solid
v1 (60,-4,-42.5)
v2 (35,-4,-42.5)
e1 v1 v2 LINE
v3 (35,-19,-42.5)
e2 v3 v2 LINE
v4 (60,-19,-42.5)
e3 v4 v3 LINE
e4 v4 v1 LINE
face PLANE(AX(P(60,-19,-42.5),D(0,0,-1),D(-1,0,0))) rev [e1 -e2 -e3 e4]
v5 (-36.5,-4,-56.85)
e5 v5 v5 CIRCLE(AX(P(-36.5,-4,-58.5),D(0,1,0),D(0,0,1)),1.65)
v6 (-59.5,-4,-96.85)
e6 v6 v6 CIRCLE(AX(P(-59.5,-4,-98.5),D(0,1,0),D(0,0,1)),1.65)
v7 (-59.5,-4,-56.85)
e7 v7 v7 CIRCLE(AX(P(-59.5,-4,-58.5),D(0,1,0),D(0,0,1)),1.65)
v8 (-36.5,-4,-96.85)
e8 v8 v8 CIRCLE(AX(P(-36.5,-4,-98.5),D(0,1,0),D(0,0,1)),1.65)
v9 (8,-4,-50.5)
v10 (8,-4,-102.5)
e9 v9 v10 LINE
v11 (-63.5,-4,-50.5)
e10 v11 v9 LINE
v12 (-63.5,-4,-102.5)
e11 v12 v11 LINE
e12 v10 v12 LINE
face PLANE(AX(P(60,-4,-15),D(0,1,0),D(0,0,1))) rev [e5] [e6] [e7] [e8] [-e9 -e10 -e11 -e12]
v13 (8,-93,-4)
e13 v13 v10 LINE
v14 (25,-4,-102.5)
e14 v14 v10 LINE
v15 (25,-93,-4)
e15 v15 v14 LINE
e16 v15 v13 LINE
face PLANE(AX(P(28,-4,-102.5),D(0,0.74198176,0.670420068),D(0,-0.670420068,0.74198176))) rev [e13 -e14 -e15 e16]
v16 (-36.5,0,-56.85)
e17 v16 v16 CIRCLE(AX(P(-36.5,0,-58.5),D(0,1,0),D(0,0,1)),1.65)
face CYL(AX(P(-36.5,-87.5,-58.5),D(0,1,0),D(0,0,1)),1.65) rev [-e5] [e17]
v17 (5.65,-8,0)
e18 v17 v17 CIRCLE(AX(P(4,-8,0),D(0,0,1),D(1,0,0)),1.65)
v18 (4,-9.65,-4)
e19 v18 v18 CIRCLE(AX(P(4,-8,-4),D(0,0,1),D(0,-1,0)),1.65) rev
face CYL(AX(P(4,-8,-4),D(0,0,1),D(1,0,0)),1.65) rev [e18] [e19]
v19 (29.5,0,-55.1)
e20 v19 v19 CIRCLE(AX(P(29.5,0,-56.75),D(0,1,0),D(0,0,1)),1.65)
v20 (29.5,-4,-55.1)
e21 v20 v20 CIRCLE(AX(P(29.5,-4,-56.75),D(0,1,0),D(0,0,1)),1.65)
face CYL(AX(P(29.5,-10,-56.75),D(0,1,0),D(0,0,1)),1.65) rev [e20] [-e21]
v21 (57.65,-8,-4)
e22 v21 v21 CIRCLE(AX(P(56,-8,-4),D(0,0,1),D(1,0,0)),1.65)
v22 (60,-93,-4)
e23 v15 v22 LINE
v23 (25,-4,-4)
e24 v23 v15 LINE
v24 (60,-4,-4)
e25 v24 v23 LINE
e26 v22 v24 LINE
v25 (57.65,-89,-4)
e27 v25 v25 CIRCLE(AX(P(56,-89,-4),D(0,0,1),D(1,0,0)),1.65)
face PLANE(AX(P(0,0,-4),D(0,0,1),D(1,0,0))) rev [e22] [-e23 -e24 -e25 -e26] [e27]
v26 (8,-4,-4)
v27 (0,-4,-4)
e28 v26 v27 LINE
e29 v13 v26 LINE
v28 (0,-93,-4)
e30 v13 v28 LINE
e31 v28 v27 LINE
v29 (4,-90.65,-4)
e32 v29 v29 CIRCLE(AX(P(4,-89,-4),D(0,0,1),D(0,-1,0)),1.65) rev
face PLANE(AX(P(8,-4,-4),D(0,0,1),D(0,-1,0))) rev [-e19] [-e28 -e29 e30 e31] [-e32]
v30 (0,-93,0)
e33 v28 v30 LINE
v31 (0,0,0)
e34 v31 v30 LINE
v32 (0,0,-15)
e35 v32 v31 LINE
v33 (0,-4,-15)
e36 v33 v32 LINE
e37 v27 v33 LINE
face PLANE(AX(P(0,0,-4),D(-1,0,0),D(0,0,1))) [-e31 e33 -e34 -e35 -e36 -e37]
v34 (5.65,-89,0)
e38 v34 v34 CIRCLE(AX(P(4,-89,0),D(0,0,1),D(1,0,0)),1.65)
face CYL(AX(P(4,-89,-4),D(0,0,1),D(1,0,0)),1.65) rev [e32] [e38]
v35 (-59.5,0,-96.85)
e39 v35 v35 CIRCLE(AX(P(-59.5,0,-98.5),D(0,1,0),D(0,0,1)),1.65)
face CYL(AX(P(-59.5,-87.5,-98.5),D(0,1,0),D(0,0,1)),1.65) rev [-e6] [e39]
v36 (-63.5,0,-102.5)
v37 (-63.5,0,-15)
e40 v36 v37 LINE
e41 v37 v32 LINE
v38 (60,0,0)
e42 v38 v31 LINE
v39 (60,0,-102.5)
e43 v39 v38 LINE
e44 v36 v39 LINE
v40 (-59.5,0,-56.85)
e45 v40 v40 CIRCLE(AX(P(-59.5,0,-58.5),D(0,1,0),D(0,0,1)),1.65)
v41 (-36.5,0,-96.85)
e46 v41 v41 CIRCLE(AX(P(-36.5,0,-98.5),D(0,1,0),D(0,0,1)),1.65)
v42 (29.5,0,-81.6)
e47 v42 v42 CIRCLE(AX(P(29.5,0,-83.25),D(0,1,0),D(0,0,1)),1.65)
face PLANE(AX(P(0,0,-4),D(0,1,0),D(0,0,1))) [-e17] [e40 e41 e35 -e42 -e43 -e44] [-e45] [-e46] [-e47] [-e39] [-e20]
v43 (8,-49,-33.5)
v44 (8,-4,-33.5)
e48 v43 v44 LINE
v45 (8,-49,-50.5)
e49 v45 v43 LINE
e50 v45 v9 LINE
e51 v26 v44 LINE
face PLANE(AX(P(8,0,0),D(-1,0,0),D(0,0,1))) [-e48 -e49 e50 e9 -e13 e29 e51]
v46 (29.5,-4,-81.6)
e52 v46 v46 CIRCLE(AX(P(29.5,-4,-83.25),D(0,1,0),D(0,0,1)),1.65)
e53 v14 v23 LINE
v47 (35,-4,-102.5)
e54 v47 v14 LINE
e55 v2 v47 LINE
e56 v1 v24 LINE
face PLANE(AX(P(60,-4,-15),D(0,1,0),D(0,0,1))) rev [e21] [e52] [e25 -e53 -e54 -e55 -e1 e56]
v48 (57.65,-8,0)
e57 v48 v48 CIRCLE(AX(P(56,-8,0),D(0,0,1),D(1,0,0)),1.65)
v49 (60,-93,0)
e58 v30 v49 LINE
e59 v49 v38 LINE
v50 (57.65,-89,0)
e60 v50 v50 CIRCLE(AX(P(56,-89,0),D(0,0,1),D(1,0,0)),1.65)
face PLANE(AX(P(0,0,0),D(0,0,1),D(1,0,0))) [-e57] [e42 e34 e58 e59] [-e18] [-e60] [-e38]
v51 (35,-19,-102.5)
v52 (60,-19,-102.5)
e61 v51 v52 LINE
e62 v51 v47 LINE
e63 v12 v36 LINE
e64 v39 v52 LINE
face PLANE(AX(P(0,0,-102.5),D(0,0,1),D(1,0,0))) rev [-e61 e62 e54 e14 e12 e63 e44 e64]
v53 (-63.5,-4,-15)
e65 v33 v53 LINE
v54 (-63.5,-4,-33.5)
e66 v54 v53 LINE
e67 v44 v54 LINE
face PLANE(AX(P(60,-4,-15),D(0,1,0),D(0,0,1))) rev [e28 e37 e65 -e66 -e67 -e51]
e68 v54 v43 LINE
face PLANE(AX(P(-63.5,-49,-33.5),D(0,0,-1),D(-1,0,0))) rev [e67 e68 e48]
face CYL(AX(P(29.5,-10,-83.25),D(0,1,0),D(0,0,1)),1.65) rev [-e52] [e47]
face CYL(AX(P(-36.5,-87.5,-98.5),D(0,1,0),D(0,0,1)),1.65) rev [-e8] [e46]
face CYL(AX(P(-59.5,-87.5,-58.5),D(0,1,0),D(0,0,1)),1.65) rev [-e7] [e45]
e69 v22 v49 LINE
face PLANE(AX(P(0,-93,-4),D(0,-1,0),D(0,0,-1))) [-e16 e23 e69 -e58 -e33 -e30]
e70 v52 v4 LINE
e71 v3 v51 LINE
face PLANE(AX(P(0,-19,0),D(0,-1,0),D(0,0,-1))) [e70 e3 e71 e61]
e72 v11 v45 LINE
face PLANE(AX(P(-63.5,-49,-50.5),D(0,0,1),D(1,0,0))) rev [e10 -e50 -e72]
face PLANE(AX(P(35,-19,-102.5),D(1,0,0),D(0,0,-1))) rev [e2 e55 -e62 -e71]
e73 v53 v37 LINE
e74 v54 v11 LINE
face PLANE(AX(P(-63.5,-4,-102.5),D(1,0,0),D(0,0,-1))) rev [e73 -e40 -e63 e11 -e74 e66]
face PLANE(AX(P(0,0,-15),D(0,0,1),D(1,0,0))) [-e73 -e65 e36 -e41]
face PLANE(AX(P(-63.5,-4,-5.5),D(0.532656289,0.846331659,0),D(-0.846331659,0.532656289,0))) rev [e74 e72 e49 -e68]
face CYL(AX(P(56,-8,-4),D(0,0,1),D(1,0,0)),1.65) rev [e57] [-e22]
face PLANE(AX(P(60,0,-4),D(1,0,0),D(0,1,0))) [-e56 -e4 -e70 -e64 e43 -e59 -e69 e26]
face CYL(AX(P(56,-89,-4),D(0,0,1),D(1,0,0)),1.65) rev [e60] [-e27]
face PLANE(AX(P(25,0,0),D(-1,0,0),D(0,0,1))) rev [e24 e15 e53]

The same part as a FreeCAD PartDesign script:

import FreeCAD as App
import Part
import Sketcher

doc = App.newDocument("Part")
params = doc.addObject("Spreadsheet::Sheet", "Params")
for row, (alias, value) in enumerate([
    ("sketch1_width", "60 mm"),
    ("sketch1_height", "93 mm"),
    ("pad1_length", "4 mm"),
    ("sketch2_diameter", "3.3 mm"),
    ("pocket1_length", "4 mm"),
    ("sketch3_width", "60 mm"),
    ("sketch3_height", "4 mm"),
    ("pad2_length", "11 mm"),
    ("sketch4_height", "4 mm"),
    ("sketch4_width", "123.5 mm"),
    ("pad3_length", "87.5 mm"),
    ("sketch5_diameter", "3.3 mm"),
    ("pocket2_length", "87.5 mm"),
    ("sketch6_diameter", "3.3 mm"),
    ("pocket3_length", "10 mm"),
    ("sketch7_width", "89 mm"),
    ("sketch7_height", "98.5 mm"),
    ("pad4_length", "25 mm"),
    ("sketch8_width", "89 mm"),
    ("sketch8_height", "98.5 mm"),
    ("pocket4_length", "8 mm"),
    ("sketch9_width", "89 mm"),
    ("sketch9_height", "98.5 mm"),
    ("pocket5_length", "20 mm"),
    ("sketch10_height", "17 mm"),
    ("sketch10_width", "71.5 mm"),
    ("pad5_length", "45 mm"),
    ("sketch11_height", "45 mm"),
    ("sketch11_width", "71.5 mm"),
    ("pocket6_length", "45 mm"),
    ("sketch12_width", "25 mm"),
    ("sketch12_height", "60 mm"),
    ("pad6_length", "15 mm"),
], start=1):
    params.set(f"A{row}", alias)
    params.set(f"B{row}", "=" + value)
    params.setAlias(f"B{row}", alias)

body = doc.addObject("PartDesign::Body", "Body")

sketch1 = doc.addObject("Sketcher::SketchObject", "Sketch")
body.addObject(sketch1)
sketch1.AttachmentSupport = (doc.XY_Plane, [""])
sketch1.MapMode = "FlatFace"
sketch1.addGeometry([
    Part.LineSegment(App.Vector(0, 0, 0), App.Vector(0, -93, 0)),
    Part.LineSegment(App.Vector(0, -93, 0), App.Vector(60, -93, 0)),
    Part.LineSegment(App.Vector(60, -93, 0), App.Vector(60, 0, 0)),
    Part.LineSegment(App.Vector(60, 0, 0), App.Vector(0, 0, 0)),
], False)
sketch1.addConstraint([
    Sketcher.Constraint("Coincident", 0, 2, 1, 1),
    Sketcher.Constraint("Coincident", 1, 2, 2, 1),
    Sketcher.Constraint("Coincident", 2, 2, 3, 1),
    Sketcher.Constraint("Coincident", 3, 2, 0, 1),
    Sketcher.Constraint("Vertical", 0),
    Sketcher.Constraint("Horizontal", 1),
    Sketcher.Constraint("Vertical", 2),
    Sketcher.Constraint("Horizontal", 3),
    Sketcher.Constraint("Coincident", 3, 2, -1, 1),
    Sketcher.Constraint("DistanceX", 1, 1, 1, 2, 60.0),
    Sketcher.Constraint("DistanceY", 0, 2, 0, 1, 93.0),
])
sketch1.setExpression("Constraints[9]", "Params.sketch1_width")
sketch1.setExpression("Constraints[10]", "Params.sketch1_height")
pad1 = doc.addObject("PartDesign::Pad", "Pad")
body.addObject(pad1)
pad1.Profile = sketch1
pad1.setExpression("Length", "Params.pad1_length")
pad1.Reversed = True

sketch2 = doc.addObject("Sketcher::SketchObject", "Sketch001")
body.addObject(sketch2)
sketch2.AttachmentSupport = (doc.XY_Plane, [""])
sketch2.MapMode = "FlatFace"
sketch2.addGeometry([
    Part.Circle(App.Vector(4, -8, 0), App.Vector(0, 0, 1), 1.6),
    Part.Circle(App.Vector(56, -8, 0), App.Vector(0, 0, 1), 1.6),
    Part.Circle(App.Vector(4, -89, 0), App.Vector(0, 0, 1), 1.6),
    Part.Circle(App.Vector(56, -89, 0), App.Vector(0, 0, 1), 1.6),
], False)
sketch2.addConstraint([
    Sketcher.Constraint("Equal", 0, 1),
    Sketcher.Constraint("Equal", 1, 2),
    Sketcher.Constraint("Equal", 2, 3),
    Sketcher.Constraint("Horizontal", 0, 3, 1, 3),
    Sketcher.Constraint("Horizontal", 2, 3, 3, 3),
    Sketcher.Constraint("Vertical", 0, 3, 2, 3),
    Sketcher.Constraint("Vertical", 1, 3, 3, 3),
    Sketcher.Constraint("Diameter", 0, 3.3),
    Sketcher.Constraint("DistanceX", -1, 1, 0, 3, 4.0),
    Sketcher.Constraint("DistanceY", 0, 3, -1, 1, 8.0),
    Sketcher.Constraint("DistanceX", -1, 1, 1, 3, 56.0),
    Sketcher.Constraint("DistanceY", 2, 3, -1, 1, 89.0),
])
sketch2.setExpression("Constraints[7]", "Params.sketch2_diameter")
pocket1 = doc.addObject("PartDesign::Pocket", "Pocket")
body.addObject(pocket1)
pocket1.Profile = sketch2
pocket1.setExpression("Length", "Params.pocket1_length")

sketch3 = doc.addObject("Sketcher::SketchObject", "Sketch002")
body.addObject(sketch3)
sketch3.AttachmentSupport = (doc.XY_Plane, [""])
sketch3.MapMode = "FlatFace"
sketch3.AttachmentOffset = App.Placement(App.Vector(0, 0, -4), App.Rotation())
sketch3.addGeometry([
    Part.LineSegment(App.Vector(60, 0, 0), App.Vector(60, -4, 0)),
    Part.LineSegment(App.Vector(60, -4, 0), App.Vector(0, -4, 0)),
    Part.LineSegment(App.Vector(0, -4, 0), App.Vector(0, 0, 0)),
    Part.LineSegment(App.Vector(0, 0, 0), App.Vector(60, 0, 0)),
], False)
sketch3.addConstraint([
    Sketcher.Constraint("Coincident", 0, 2, 1, 1),
    Sketcher.Constraint("Coincident", 1, 2, 2, 1),
    Sketcher.Constraint("Coincident", 2, 2, 3, 1),
    Sketcher.Constraint("Coincident", 3, 2, 0, 1),
    Sketcher.Constraint("Vertical", 0),
    Sketcher.Constraint("Horizontal", 1),
    Sketcher.Constraint("Vertical", 2),
    Sketcher.Constraint("Horizontal", 3),
    Sketcher.Constraint("Coincident", 2, 2, -1, 1),
    Sketcher.Constraint("DistanceX", 1, 2, 1, 1, 60.0),
    Sketcher.Constraint("DistanceY", 0, 2, 0, 1, 4.0),
])
sketch3.setExpression("Constraints[9]", "Params.sketch3_width")
sketch3.setExpression("Constraints[10]", "Params.sketch3_height")
pad2 = doc.addObject("PartDesign::Pad", "Pad001")
body.addObject(pad2)
pad2.Profile = sketch3
pad2.setExpression("Length", "Params.pad2_length")
pad2.Reversed = True

sketch4 = doc.addObject("Sketcher::SketchObject", "Sketch003")
body.addObject(sketch4)
sketch4.AttachmentSupport = (doc.XY_Plane, [""])
sketch4.MapMode = "FlatFace"
sketch4.AttachmentOffset = App.Placement(App.Vector(0, 0, -15), App.Rotation())
sketch4.addGeometry([
    Part.LineSegment(App.Vector(60, 0, 0), App.Vector(60, -4, 0)),
    Part.LineSegment(App.Vector(60, -4, 0), App.Vector(-63.5, -4, 0)),
    Part.LineSegment(App.Vector(-63.5, -4, 0), App.Vector(-63.5, 0, 0)),
    Part.LineSegment(App.Vector(-63.5, 0, 0), App.Vector(60, 0, 0)),
], False)
sketch4.addConstraint([
    Sketcher.Constraint("Coincident", 0, 2, 1, 1),
    Sketcher.Constraint("Coincident", 1, 2, 2, 1),
    Sketcher.Constraint("Coincident", 2, 2, 3, 1),
    Sketcher.Constraint("Coincident", 3, 2, 0, 1),
    Sketcher.Constraint("Vertical", 0),
    Sketcher.Constraint("Horizontal", 1),
    Sketcher.Constraint("Vertical", 2),
    Sketcher.Constraint("Horizontal", 3),
    Sketcher.Constraint("PointOnObject", 2, 2, -1),
    Sketcher.Constraint("DistanceY", 0, 2, 0, 1, 4.0),
    Sketcher.Constraint("DistanceX", 1, 2, 1, 1, 123.5),
    Sketcher.Constraint("DistanceX", -1, 1, 0, 2, 60.0),
])
sketch4.setExpression("Constraints[9]", "Params.sketch4_height")
sketch4.setExpression("Constraints[10]", "Params.sketch4_width")
pad3 = doc.addObject("PartDesign::Pad", "Pad002")
body.addObject(pad3)
pad3.Profile = sketch4
pad3.setExpression("Length", "Params.pad3_length")
pad3.Reversed = True

sketch5 = doc.addObject("Sketcher::SketchObject", "Sketch004")
body.addObject(sketch5)
sketch5.AttachmentSupport = (doc.XZ_Plane, [""])
sketch5.MapMode = "FlatFace"
sketch5.addGeometry([
    Part.Circle(App.Vector(-59.5, -98.5, 0), App.Vector(0, 0, 1), 1.6),
    Part.Circle(App.Vector(-36.5, -98.5, 0), App.Vector(0, 0, 1), 1.6),
    Part.Circle(App.Vector(-59.5, -58.5, 0), App.Vector(0, 0, 1), 1.6),
    Part.Circle(App.Vector(-36.5, -58.5, 0), App.Vector(0, 0, 1), 1.6),
], False)
sketch5.addConstraint([
    Sketcher.Constraint("Equal", 0, 1),
    Sketcher.Constraint("Equal", 1, 2),
    Sketcher.Constraint("Equal", 2, 3),
    Sketcher.Constraint("Horizontal", 0, 3, 1, 3),
    Sketcher.Constraint("Horizontal", 2, 3, 3, 3),
    Sketcher.Constraint("Vertical", 0, 3, 2, 3),
    Sketcher.Constraint("Vertical", 1, 3, 3, 3),
    Sketcher.Constraint("Diameter", 0, 3.3),
    Sketcher.Constraint("DistanceX", 0, 3, 1, 3, 23.0),
    Sketcher.Constraint("DistanceY", 0, 3, 2, 3, 40.0),
    Sketcher.Constraint("DistanceX", 0, 3, -1, 1, 59.5),
    Sketcher.Constraint("DistanceY", 0, 3, -1, 1, 98.5),
])
sketch5.setExpression("Constraints[7]", "Params.sketch5_diameter")
pocket2 = doc.addObject("PartDesign::Pocket", "Pocket001")
body.addObject(pocket2)
pocket2.Profile = sketch5
pocket2.setExpression("Length", "Params.pocket2_length")
pocket2.Reversed = True

sketch6 = doc.addObject("Sketcher::SketchObject", "Sketch005")
body.addObject(sketch6)
sketch6.AttachmentSupport = (doc.XZ_Plane, [""])
sketch6.MapMode = "FlatFace"
sketch6.addGeometry([
    Part.Circle(App.Vector(29.5, -83.2, 0), App.Vector(0, 0, 1), 1.6),
    Part.Circle(App.Vector(29.5, -56.8, 0), App.Vector(0, 0, 1), 1.6),
], False)
sketch6.addConstraint([
    Sketcher.Constraint("Equal", 0, 1),
    Sketcher.Constraint("Vertical", 0, 3, 1, 3),
    Sketcher.Constraint("Diameter", 0, 3.3),
    Sketcher.Constraint("DistanceX", -1, 1, 0, 3, 29.5),
    Sketcher.Constraint("DistanceY", 0, 3, 1, 3, 26.5),
    Sketcher.Constraint("DistanceY", 0, 3, -1, 1, 83.25),
])
sketch6.setExpression("Constraints[2]", "Params.sketch6_diameter")
pocket3 = doc.addObject("PartDesign::Pocket", "Pocket002")
body.addObject(pocket3)
pocket3.Profile = sketch6
pocket3.setExpression("Length", "Params.pocket3_length")
pocket3.Reversed = True

sketch7 = doc.addObject("Sketcher::SketchObject", "Sketch006")
body.addObject(sketch7)
sketch7.AttachmentSupport = (doc.YZ_Plane, [""])
sketch7.MapMode = "FlatFace"
sketch7.addGeometry([
    Part.LineSegment(App.Vector(-4, -4, 0), App.Vector(-93, -4, 0)),
    Part.LineSegment(App.Vector(-93, -4, 0), App.Vector(-93, -102, 0)),
    Part.LineSegment(App.Vector(-93, -102, 0), App.Vector(-4, -102, 0)),
    Part.LineSegment(App.Vector(-4, -102, 0), App.Vector(-4, -4, 0)),
], False)
sketch7.addConstraint([
    Sketcher.Constraint("Coincident", 0, 2, 1, 1),
    Sketcher.Constraint("Coincident", 1, 2, 2, 1),
    Sketcher.Constraint("Coincident", 2, 2, 3, 1),
    Sketcher.Constraint("Coincident", 3, 2, 0, 1),
    Sketcher.Constraint("Horizontal", 0),
    Sketcher.Constraint("Vertical", 1),
    Sketcher.Constraint("Horizontal", 2),
    Sketcher.Constraint("Vertical", 3),
    Sketcher.Constraint("DistanceX", 0, 2, 0, 1, 89.0),
    Sketcher.Constraint("DistanceY", 1, 2, 1, 1, 98.5),
    Sketcher.Constraint("DistanceX", 0, 2, -1, 1, 93.0),
    Sketcher.Constraint("DistanceY", 0, 2, -1, 1, 4.0),
])
sketch7.setExpression("Constraints[8]", "Params.sketch7_width")
sketch7.setExpression("Constraints[9]", "Params.sketch7_height")
pad4 = doc.addObject("PartDesign::Pad", "Pad003")
body.addObject(pad4)
pad4.Profile = sketch7
pad4.setExpression("Length", "Params.pad4_length")

sketch8 = doc.addObject("Sketcher::SketchObject", "Sketch007")
body.addObject(sketch8)
sketch8.AttachmentSupport = (doc.YZ_Plane, [""])
sketch8.MapMode = "FlatFace"
sketch8.addGeometry([
    Part.LineSegment(App.Vector(-4, -102, 0), App.Vector(-93, -102, 0)),
    Part.LineSegment(App.Vector(-93, -102, 0), App.Vector(-93, -4, 0)),
    Part.LineSegment(App.Vector(-93, -4, 0), App.Vector(-4, -4, 0)),
    Part.LineSegment(App.Vector(-4, -4, 0), App.Vector(-4, -102, 0)),
], False)
sketch8.addConstraint([
    Sketcher.Constraint("Coincident", 0, 2, 1, 1),
    Sketcher.Constraint("Coincident", 1, 2, 2, 1),
    Sketcher.Constraint("Coincident", 2, 2, 3, 1),
    Sketcher.Constraint("Coincident", 3, 2, 0, 1),
    Sketcher.Constraint("Horizontal", 0),
    Sketcher.Constraint("Vertical", 1),
    Sketcher.Constraint("Horizontal", 2),
    Sketcher.Constraint("Vertical", 3),
    Sketcher.Constraint("DistanceX", 0, 2, 0, 1, 89.0),
    Sketcher.Constraint("DistanceY", 1, 1, 1, 2, 98.5),
    Sketcher.Constraint("DistanceX", 0, 2, -1, 1, 93.0),
    Sketcher.Constraint("DistanceY", 1, 2, -1, 1, 4.0),
])
sketch8.setExpression("Constraints[8]", "Params.sketch8_width")
sketch8.setExpression("Constraints[9]", "Params.sketch8_height")
pocket4 = doc.addObject("PartDesign::Pocket", "Pocket003")
body.addObject(pocket4)
pocket4.Profile = sketch8
pocket4.setExpression("Length", "Params.pocket4_length")
pocket4.Reversed = True

sketch9 = doc.addObject("Sketcher::SketchObject", "Sketch008")
body.addObject(sketch9)
sketch9.AttachmentSupport = (doc.YZ_Plane, [""])
sketch9.MapMode = "FlatFace"
sketch9.AttachmentOffset = App.Placement(App.Vector(0, 0, 8), App.Rotation())
sketch9.addGeometry([
    Part.LineSegment(App.Vector(-4, -102, 0), App.Vector(-93, -102, 0)),
    Part.LineSegment(App.Vector(-93, -102, 0), App.Vector(-93, -4, 0)),
    Part.LineSegment(App.Vector(-93, -4, 0), App.Vector(-4, -102, 0)),
], False)
sketch9.addConstraint([
    Sketcher.Constraint("Coincident", 0, 2, 1, 1),
    Sketcher.Constraint("Coincident", 1, 2, 2, 1),
    Sketcher.Constraint("Coincident", 2, 2, 0, 1),
    Sketcher.Constraint("Horizontal", 0),
    Sketcher.Constraint("Vertical", 1),
    Sketcher.Constraint("DistanceX", 0, 2, 0, 1, 89.0),
    Sketcher.Constraint("DistanceY", 1, 1, 1, 2, 98.5),
    Sketcher.Constraint("DistanceX", 0, 2, -1, 1, 93.0),
    Sketcher.Constraint("DistanceY", 1, 2, -1, 1, 4.0),
])
sketch9.setExpression("Constraints[5]", "Params.sketch9_width")
sketch9.setExpression("Constraints[6]", "Params.sketch9_height")
pocket5 = doc.addObject("PartDesign::Pocket", "Pocket004")
body.addObject(pocket5)
pocket5.Profile = sketch9
pocket5.setExpression("Length", "Params.pocket5_length")
pocket5.Reversed = True

sketch10 = doc.addObject("Sketcher::SketchObject", "Sketch009")
body.addObject(sketch10)
sketch10.AttachmentSupport = (doc.XZ_Plane, [""])
sketch10.MapMode = "FlatFace"
sketch10.AttachmentOffset = App.Placement(App.Vector(0, 0, 4), App.Rotation())
sketch10.addGeometry([
    Part.LineSegment(App.Vector(-64, -34, 0), App.Vector(-64, -50, 0)),
    Part.LineSegment(App.Vector(-64, -50, 0), App.Vector(8, -50, 0)),
    Part.LineSegment(App.Vector(8, -50, 0), App.Vector(8, -34, 0)),
    Part.LineSegment(App.Vector(8, -34, 0), App.Vector(-64, -34, 0)),
], False)
sketch10.addConstraint([
    Sketcher.Constraint("Coincident", 0, 2, 1, 1),
    Sketcher.Constraint("Coincident", 1, 2, 2, 1),
    Sketcher.Constraint("Coincident", 2, 2, 3, 1),
    Sketcher.Constraint("Coincident", 3, 2, 0, 1),
    Sketcher.Constraint("Vertical", 0),
    Sketcher.Constraint("Horizontal", 1),
    Sketcher.Constraint("Vertical", 2),
    Sketcher.Constraint("Horizontal", 3),
    Sketcher.Constraint("DistanceY", 0, 2, 0, 1, 17.0),
    Sketcher.Constraint("DistanceX", 1, 1, 1, 2, 71.5),
    Sketcher.Constraint("DistanceX", -1, 1, 1, 2, 8.0),
    Sketcher.Constraint("DistanceY", 0, 2, -1, 1, 50.5),
])
sketch10.setExpression("Constraints[8]", "Params.sketch10_height")
sketch10.setExpression("Constraints[9]", "Params.sketch10_width")
pad5 = doc.addObject("PartDesign::Pad", "Pad004")
body.addObject(pad5)
pad5.Profile = sketch10
pad5.setExpression("Length", "Params.pad5_length")

sketch11 = doc.addObject("Sketcher::SketchObject", "Sketch010")
body.addObject(sketch11)
sketch11.AttachmentSupport = (doc.XY_Plane, [""])
sketch11.MapMode = "FlatFace"
sketch11.AttachmentOffset = App.Placement(App.Vector(0, 0, -50.5), App.Rotation())
sketch11.addGeometry([
    Part.LineSegment(App.Vector(-64, -4, 0), App.Vector(8, -49, 0)),
    Part.LineSegment(App.Vector(8, -49, 0), App.Vector(-64, -49, 0)),
    Part.LineSegment(App.Vector(-64, -49, 0), App.Vector(-64, -4, 0)),
], False)
sketch11.addConstraint([
    Sketcher.Constraint("Coincident", 0, 2, 1, 1),
    Sketcher.Constraint("Coincident", 1, 2, 2, 1),
    Sketcher.Constraint("Coincident", 2, 2, 0, 1),
    Sketcher.Constraint("Horizontal", 1),
    Sketcher.Constraint("Vertical", 2),
    Sketcher.Constraint("DistanceY", 2, 1, 2, 2, 45.0),
    Sketcher.Constraint("DistanceX", 1, 2, 1, 1, 71.5),
    Sketcher.Constraint("DistanceX", -1, 1, 0, 2, 8.0),
    Sketcher.Constraint("DistanceY", 0, 2, -1, 1, 49.0),
])
sketch11.setExpression("Constraints[5]", "Params.sketch11_height")
sketch11.setExpression("Constraints[6]", "Params.sketch11_width")
pocket6 = doc.addObject("PartDesign::Pocket", "Pocket005")
body.addObject(pocket6)
pocket6.Profile = sketch11
pocket6.setExpression("Length", "Params.pocket6_length")
pocket6.Reversed = True

sketch12 = doc.addObject("Sketcher::SketchObject", "Sketch011")
body.addObject(sketch12)
sketch12.AttachmentSupport = (doc.XZ_Plane, [""])
sketch12.MapMode = "FlatFace"
sketch12.AttachmentOffset = App.Placement(App.Vector(0, 0, 4), App.Rotation())
sketch12.addGeometry([
    Part.LineSegment(App.Vector(35, -42, 0), App.Vector(35, -102, 0)),
    Part.LineSegment(App.Vector(35, -102, 0), App.Vector(60, -102, 0)),
    Part.LineSegment(App.Vector(60, -102, 0), App.Vector(60, -42, 0)),
    Part.LineSegment(App.Vector(60, -42, 0), App.Vector(35, -42, 0)),
], False)
sketch12.addConstraint([
    Sketcher.Constraint("Coincident", 0, 2, 1, 1),
    Sketcher.Constraint("Coincident", 1, 2, 2, 1),
    Sketcher.Constraint("Coincident", 2, 2, 3, 1),
    Sketcher.Constraint("Coincident", 3, 2, 0, 1),
    Sketcher.Constraint("Vertical", 0),
    Sketcher.Constraint("Horizontal", 1),
    Sketcher.Constraint("Vertical", 2),
    Sketcher.Constraint("Horizontal", 3),
    Sketcher.Constraint("DistanceX", 1, 1, 1, 2, 25.0),
    Sketcher.Constraint("DistanceY", 0, 2, 0, 1, 60.0),
    Sketcher.Constraint("DistanceX", -1, 1, 0, 2, 35.0),
    Sketcher.Constraint("DistanceY", 0, 2, -1, 1, 102.5),
])
sketch12.setExpression("Constraints[8]", "Params.sketch12_width")
sketch12.setExpression("Constraints[9]", "Params.sketch12_height")
pad6 = doc.addObject("PartDesign::Pad", "Pad005")
body.addObject(pad6)
pad6.Profile = sketch12
pad6.setExpression("Length", "Params.pad6_length")

doc.recompute()
